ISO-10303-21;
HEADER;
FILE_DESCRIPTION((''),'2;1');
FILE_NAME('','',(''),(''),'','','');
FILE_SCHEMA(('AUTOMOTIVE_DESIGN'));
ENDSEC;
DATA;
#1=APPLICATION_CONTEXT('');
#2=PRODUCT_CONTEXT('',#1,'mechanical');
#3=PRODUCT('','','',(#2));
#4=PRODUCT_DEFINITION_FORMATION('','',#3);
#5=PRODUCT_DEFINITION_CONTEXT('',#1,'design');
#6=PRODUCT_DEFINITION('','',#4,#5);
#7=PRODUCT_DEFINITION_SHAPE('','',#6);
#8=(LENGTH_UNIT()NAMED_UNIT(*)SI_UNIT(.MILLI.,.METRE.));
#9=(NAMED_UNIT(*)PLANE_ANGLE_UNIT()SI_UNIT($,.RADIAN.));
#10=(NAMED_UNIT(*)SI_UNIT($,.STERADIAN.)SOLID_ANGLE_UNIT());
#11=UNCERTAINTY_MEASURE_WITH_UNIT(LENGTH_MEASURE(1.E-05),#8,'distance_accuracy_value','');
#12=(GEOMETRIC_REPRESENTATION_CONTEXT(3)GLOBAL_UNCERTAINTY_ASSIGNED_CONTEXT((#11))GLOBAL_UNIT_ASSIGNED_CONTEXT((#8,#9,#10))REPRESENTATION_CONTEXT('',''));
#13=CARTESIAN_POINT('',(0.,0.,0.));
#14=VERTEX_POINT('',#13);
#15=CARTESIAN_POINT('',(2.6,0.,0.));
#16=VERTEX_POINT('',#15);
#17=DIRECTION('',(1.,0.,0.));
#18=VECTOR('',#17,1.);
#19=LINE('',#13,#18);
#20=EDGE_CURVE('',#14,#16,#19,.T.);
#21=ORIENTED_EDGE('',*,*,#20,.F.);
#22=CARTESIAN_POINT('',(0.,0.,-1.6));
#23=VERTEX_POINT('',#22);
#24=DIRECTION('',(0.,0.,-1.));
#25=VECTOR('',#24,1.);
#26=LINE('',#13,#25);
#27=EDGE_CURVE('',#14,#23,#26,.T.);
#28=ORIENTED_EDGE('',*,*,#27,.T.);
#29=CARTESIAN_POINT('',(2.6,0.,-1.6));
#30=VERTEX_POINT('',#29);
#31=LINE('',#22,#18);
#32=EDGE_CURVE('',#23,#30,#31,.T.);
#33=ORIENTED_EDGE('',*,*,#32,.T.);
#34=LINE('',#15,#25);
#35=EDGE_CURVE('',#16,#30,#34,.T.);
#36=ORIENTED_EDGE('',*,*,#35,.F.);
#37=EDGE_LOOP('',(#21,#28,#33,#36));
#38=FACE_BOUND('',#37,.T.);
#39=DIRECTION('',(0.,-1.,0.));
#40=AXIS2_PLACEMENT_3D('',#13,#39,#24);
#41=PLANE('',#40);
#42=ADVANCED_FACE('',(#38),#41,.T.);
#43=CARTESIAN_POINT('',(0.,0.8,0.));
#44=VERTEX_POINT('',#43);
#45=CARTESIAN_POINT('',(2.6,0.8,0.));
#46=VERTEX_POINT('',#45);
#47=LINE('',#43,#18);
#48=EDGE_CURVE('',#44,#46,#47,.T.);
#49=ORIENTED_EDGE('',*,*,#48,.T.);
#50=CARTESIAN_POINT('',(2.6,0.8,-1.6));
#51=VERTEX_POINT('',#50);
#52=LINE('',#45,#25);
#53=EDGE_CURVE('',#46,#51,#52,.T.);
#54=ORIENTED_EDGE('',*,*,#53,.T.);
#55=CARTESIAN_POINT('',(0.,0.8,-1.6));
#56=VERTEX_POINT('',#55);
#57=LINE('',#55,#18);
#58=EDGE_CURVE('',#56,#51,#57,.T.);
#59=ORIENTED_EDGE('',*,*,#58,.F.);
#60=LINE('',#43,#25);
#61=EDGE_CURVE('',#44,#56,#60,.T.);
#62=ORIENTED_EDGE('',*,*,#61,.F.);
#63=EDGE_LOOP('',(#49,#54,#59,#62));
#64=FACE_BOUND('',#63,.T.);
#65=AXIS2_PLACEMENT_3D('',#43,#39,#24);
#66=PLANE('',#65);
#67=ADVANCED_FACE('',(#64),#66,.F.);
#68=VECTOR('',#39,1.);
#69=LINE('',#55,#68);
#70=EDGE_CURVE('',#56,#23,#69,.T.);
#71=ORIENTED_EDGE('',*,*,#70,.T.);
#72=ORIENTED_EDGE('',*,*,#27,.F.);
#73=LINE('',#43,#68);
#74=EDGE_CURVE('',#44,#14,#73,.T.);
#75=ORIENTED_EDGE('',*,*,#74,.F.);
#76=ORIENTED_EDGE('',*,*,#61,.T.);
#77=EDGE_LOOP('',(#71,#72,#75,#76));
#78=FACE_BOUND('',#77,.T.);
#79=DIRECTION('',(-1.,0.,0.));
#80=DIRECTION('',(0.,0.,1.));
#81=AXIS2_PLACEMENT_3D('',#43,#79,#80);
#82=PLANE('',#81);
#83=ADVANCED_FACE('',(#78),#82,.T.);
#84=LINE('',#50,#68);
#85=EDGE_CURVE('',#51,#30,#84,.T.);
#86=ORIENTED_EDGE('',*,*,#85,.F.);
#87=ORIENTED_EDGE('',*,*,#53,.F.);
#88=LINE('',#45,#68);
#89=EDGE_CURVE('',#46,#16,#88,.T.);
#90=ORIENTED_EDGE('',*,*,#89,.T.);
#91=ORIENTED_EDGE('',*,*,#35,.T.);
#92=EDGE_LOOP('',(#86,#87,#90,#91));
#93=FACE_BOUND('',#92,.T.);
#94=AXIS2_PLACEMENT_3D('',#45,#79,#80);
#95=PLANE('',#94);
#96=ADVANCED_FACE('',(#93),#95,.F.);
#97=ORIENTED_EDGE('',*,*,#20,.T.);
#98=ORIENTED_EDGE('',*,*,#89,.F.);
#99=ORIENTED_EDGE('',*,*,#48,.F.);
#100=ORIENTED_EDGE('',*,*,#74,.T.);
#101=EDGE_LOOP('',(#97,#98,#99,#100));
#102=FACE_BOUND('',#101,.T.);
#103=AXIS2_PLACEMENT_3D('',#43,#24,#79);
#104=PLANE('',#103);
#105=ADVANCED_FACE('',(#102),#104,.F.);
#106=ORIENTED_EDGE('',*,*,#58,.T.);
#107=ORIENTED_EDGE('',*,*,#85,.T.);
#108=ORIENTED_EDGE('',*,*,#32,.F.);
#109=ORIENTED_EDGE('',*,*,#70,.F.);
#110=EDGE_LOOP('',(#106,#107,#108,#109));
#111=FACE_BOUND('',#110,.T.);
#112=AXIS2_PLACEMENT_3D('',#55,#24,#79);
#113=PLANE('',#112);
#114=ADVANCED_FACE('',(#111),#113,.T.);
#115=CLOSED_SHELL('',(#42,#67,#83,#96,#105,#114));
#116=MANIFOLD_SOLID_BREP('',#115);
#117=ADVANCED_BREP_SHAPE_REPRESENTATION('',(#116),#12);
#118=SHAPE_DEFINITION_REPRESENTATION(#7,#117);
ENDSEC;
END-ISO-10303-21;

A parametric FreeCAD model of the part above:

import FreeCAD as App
import Part
import Sketcher
from FreeCAD import Vector
Q = App.Units.Quantity

doc = App.newDocument("Part")
body = doc.addObject("PartDesign::Body", "Body")

# Sketch on XZ plane
sketch1 = body.newObject("Sketcher::SketchObject", "Sketch")
sketch1.AttachmentSupport = (doc.getObject("XZ_Plane"), [""])
sketch1.MapMode = "FlatFace"
sketch1.addGeometry([
    Part.LineSegment(Vector(0, -1.6, 0), Vector(0, 0, 0)),
    Part.LineSegment(Vector(0, 0, 0), Vector(2.6, 0, 0)),
    Part.LineSegment(Vector(2.6, 0, 0), Vector(2.6, -1.6, 0)),
    Part.LineSegment(Vector(2.6, -1.6, 0), Vector(0, -1.6, 0)),
], False)
sketch1.addConstraint([
    Sketcher.Constraint("Coincident", 0, 2, 1, 1),
    Sketcher.Constraint("Coincident", 1, 2, 2, 1),
    Sketcher.Constraint("Coincident", 2, 2, 3, 1),
    Sketcher.Constraint("Coincident", 3, 2, 0, 1),
    Sketcher.Constraint("Vertical", 0),
    Sketcher.Constraint("Horizontal", 1),
    Sketcher.Constraint("Vertical", 2),
    Sketcher.Constraint("Horizontal", 3),
    Sketcher.Constraint("Coincident", 0, 2, -1, 1),
    Sketcher.Constraint("DistanceX", 1, 1, 1, 2, Q("2.6 mm")),
    Sketcher.Constraint("DistanceY", 0, 1, 0, 2, Q("1.6 mm")),
])
pad1 = body.newObject("PartDesign::Pad", "Pad")
pad1.Profile = sketch1
pad1.Length = 0.8
pad1.Reversed = True

doc.recompute()
